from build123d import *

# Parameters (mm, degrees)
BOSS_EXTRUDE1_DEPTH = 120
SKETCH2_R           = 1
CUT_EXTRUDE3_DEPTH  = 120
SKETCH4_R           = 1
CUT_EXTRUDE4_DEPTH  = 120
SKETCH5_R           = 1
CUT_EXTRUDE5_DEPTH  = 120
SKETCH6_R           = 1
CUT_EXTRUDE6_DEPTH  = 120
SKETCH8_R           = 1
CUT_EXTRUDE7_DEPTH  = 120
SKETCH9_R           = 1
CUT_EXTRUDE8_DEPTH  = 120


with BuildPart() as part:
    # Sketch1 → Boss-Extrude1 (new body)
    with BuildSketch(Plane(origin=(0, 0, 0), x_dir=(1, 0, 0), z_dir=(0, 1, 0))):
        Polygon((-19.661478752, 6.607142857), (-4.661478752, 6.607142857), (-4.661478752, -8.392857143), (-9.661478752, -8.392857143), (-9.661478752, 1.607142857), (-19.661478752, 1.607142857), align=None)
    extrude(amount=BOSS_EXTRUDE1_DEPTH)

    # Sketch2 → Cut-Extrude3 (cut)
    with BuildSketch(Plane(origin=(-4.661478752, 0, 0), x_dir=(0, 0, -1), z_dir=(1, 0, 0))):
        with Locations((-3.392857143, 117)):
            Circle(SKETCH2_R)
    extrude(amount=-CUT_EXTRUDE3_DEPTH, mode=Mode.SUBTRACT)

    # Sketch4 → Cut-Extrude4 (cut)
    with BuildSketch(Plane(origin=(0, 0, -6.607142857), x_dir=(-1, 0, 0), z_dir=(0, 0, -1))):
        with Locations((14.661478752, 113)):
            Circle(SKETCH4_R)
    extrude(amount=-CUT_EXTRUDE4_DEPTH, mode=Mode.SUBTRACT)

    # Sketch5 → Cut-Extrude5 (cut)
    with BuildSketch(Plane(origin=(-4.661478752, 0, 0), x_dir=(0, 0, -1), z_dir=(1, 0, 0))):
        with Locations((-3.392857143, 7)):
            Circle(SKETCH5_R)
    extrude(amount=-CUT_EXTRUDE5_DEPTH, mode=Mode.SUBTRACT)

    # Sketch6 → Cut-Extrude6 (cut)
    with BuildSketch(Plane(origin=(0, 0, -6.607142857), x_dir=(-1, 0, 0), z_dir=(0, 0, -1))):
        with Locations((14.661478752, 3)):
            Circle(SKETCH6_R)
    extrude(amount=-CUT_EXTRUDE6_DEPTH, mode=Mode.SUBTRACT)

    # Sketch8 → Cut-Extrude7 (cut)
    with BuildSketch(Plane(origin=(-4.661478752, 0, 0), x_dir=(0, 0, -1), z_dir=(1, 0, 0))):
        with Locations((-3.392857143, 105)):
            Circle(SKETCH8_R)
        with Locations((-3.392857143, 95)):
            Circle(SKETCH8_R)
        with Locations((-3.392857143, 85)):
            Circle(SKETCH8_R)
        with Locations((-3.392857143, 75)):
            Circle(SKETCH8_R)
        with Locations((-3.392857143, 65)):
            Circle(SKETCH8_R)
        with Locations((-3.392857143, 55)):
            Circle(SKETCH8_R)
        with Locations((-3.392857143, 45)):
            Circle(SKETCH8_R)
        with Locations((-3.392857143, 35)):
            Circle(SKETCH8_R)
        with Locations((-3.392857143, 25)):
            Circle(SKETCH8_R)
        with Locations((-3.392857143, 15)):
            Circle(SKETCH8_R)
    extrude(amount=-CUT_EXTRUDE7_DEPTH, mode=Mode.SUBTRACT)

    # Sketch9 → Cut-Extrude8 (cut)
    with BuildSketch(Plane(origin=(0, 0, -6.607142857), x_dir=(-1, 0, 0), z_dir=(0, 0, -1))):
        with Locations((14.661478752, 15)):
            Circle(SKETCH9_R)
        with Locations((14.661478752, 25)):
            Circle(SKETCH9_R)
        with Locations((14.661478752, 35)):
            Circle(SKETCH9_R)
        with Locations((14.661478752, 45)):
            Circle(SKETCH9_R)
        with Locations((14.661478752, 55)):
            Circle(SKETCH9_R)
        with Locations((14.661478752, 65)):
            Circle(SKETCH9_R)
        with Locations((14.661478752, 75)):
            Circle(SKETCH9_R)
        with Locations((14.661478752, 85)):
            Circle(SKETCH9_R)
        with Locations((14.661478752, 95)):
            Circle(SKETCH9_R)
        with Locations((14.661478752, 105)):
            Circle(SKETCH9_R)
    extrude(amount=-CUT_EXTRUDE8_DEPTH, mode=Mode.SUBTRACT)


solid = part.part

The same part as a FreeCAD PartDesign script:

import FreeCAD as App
import Part
import Sketcher

V = App.Vector
Q = App.Units.Quantity


def add_polygon(sketch, points):
    """Adds a closed chain of lines whose ends are joined by coincident constraints."""
    first, n = sketch.GeometryCount, len(points)
    for a, b in zip(points, points[1:] + points[:1]):
        sketch.addGeometry(Part.LineSegment(App.Vector(*a, 0), App.Vector(*b, 0)), False)
    for i in range(n):
        sketch.addConstraint(Sketcher.Constraint("Coincident", first + i, 2, first + (i + 1) % n, 1))

doc = App.newDocument("Part")
body = doc.addObject("PartDesign::Body", "Body")

sketch1 = body.newObject("Sketcher::SketchObject", "Sketch")
sketch1.AttachmentSupport = (doc.getObject("XZ_Plane"), [""])
sketch1.MapMode = "FlatFace"
add_polygon(sketch1, [(-4.661479, -6.607143), (-19.661479, -6.607143), (-19.661479, -1.607143), (-9.661479, -1.607143), (-9.661479, 8.392857), (-4.661479, 8.392857)])
sketch1.addConstraint([
    Sketcher.Constraint("Horizontal", 0),
    Sketcher.Constraint("Vertical", 1),
    Sketcher.Constraint("Horizontal", 2),
    Sketcher.Constraint("Vertical", 3),
    Sketcher.Constraint("Horizontal", 4),
    Sketcher.Constraint("Vertical", 5),
    Sketcher.Constraint("Equal", 4, 1),
    Sketcher.Constraint("Equal", 2, 3),
    Sketcher.Constraint("DistanceX", 0, 2, 0, 1, Q("15 mm")),
    Sketcher.Constraint("DistanceX", 2, 1, 2, 2, Q("10 mm")),
    Sketcher.Constraint("DistanceX", 0, 2, -1, 1, Q("19.661479 mm")),
    Sketcher.Constraint("DistanceY", 0, 2, -1, 1, Q("6.607143 mm")),
])
pad1 = body.newObject("PartDesign::Pad", "Pad")
pad1.Profile = sketch1
pad1.Length = 120
pad1.Reversed = True

sketch2 = body.newObject("Sketcher::SketchObject", "Sketch001")
sketch2.AttachmentSupport = (doc.getObject("YZ_Plane"), [""])
sketch2.MapMode = "FlatFace"
sketch2.AttachmentOffset = App.Placement(V(0, 0, -4.661479), App.Rotation())
sketch2.addGeometry(Part.Circle(V(117, 3.392857, 0), V(0, 0, 1), 1), False)
sketch2.addConstraint([
    Sketcher.Constraint("Diameter", 0, Q("2 mm")),
    Sketcher.Constraint("DistanceX", -1, 1, 0, 3, Q("117 mm")),
    Sketcher.Constraint("DistanceY", -1, 1, 0, 3, Q("3.392857 mm")),
])
pocket1 = body.newObject("PartDesign::Pocket", "Pocket")
pocket1.Profile = sketch2
pocket1.Length = 120

sketch3 = body.newObject("Sketcher::SketchObject", "Sketch002")
sketch3.AttachmentSupport = (doc.getObject("XY_Plane"), [""])
sketch3.MapMode = "FlatFace"
sketch3.AttachmentOffset = App.Placement(V(0, 0, -6.607143), App.Rotation())
sketch3.addGeometry(Part.Circle(V(-14.661479, 113, 0), V(0, 0, 1), 1), False)
sketch3.addConstraint([
    Sketcher.Constraint("Diameter", 0, Q("2 mm")),
    Sketcher.Constraint("DistanceY", -1, 1, 0, 3, Q("113 mm")),
    Sketcher.Constraint("DistanceX", 0, 3, -1, 1, Q("14.661479 mm")),
])
pocket2 = body.newObject("PartDesign::Pocket", "Pocket001")
pocket2.Profile = sketch3
pocket2.Length = 120
pocket2.Reversed = True

sketch4 = body.newObject("Sketcher::SketchObject", "Sketch003")
sketch4.AttachmentSupport = (doc.getObject("YZ_Plane"), [""])
sketch4.MapMode = "FlatFace"
sketch4.AttachmentOffset = App.Placement(V(0, 0, -4.661479), App.Rotation())
sketch4.addGeometry(Part.Circle(V(7, 3.392857, 0), V(0, 0, 1), 1), False)
sketch4.addConstraint([
    Sketcher.Constraint("Diameter", 0, Q("2 mm")),
    Sketcher.Constraint("DistanceX", -1, 1, 0, 3, Q("7 mm")),
    Sketcher.Constraint("DistanceY", -1, 1, 0, 3, Q("3.392857 mm")),
])
pocket3 = body.newObject("PartDesign::Pocket", "Pocket002")
pocket3.Profile = sketch4
pocket3.Length = 120

sketch5 = body.newObject("Sketcher::SketchObject", "Sketch004")
sketch5.AttachmentSupport = (doc.getObject("XY_Plane"), [""])
sketch5.MapMode = "FlatFace"
sketch5.AttachmentOffset = App.Placement(V(0, 0, -6.607143), App.Rotation())
sketch5.addGeometry(Part.Circle(V(-14.661479, 3, 0), V(0, 0, 1), 1), False)
sketch5.addConstraint([
    Sketcher.Constraint("Diameter", 0, Q("2 mm")),
    Sketcher.Constraint("DistanceY", -1, 1, 0, 3, Q("3 mm")),
    Sketcher.Constraint("DistanceX", 0, 3, -1, 1, Q("14.661479 mm")),
])
pocket4 = body.newObject("PartDesign::Pocket", "Pocket003")
pocket4.Profile = sketch5
pocket4.Length = 120
pocket4.Reversed = True

sketch6 = body.newObject("Sketcher::SketchObject", "Sketch005")
sketch6.AttachmentSupport = (doc.getObject("YZ_Plane"), [""])
sketch6.MapMode = "FlatFace"
sketch6.AttachmentOffset = App.Placement(V(0, 0, -4.661479), App.Rotation())
sketch6.addGeometry([
    Part.Circle(V(105, 3.392857, 0), V(0, 0, 1), 1),
    Part.Circle(V(95, 3.392857, 0), V(0, 0, 1), 1),
    Part.Circle(V(85, 3.392857, 0), V(0, 0, 1), 1),
    Part.Circle(V(75, 3.392857, 0), V(0, 0, 1), 1),
    Part.Circle(V(65, 3.392857, 0), V(0, 0, 1), 1),
    Part.Circle(V(55, 3.392857, 0), V(0, 0, 1), 1),
    Part.Circle(V(45, 3.392857, 0), V(0, 0, 1), 1),
    Part.Circle(V(35, 3.392857, 0), V(0, 0, 1), 1),
    Part.Circle(V(25, 3.392857, 0), V(0, 0, 1), 1),
    Part.Circle(V(15, 3.392857, 0), V(0, 0, 1), 1),
], False)
sketch6.addConstraint([
    Sketcher.Constraint("Equal", 0, 1),
    Sketcher.Constraint("Equal", 1, 2),
    Sketcher.Constraint("Equal", 2, 3),
    Sketcher.Constraint("Equal", 3, 4),
    Sketcher.Constraint("Equal", 4, 5),
    Sketcher.Constraint("Equal", 5, 6),
    Sketcher.Constraint("Equal", 6, 7),
    Sketcher.Constraint("Equal", 7, 8),
    Sketcher.Constraint("Equal", 8, 9),
    Sketcher.Constraint("Horizontal", 0, 3, 1, 3),
    Sketcher.Constraint("Horizontal", 1, 3, 2, 3),
    Sketcher.Constraint("Horizontal", 2, 3, 3, 3),
    Sketcher.Constraint("Horizontal", 3, 3, 4, 3),
    Sketcher.Constraint("Horizontal", 4, 3, 5, 3),
    Sketcher.Constraint("Horizontal", 5, 3, 6, 3),
    Sketcher.Constraint("Horizontal", 6, 3, 7, 3),
    Sketcher.Constraint("Horizontal", 7, 3, 8, 3),
    Sketcher.Constraint("Horizontal", 8, 3, 9, 3),
    Sketcher.Constraint("Diameter", 0, Q("2 mm")),
    Sketcher.Constraint("DistanceX", -1, 1, 0, 3, Q("105 mm")),
    Sketcher.Constraint("DistanceX", -1, 1, 1, 3, Q("95 mm")),
    Sketcher.Constraint("DistanceX", -1, 1, 2, 3, Q("85 mm")),
    Sketcher.Constraint("DistanceX", -1, 1, 3, 3, Q("75 mm")),
    Sketcher.Constraint("DistanceX", -1, 1, 4, 3, Q("65 mm")),
    Sketcher.Constraint("DistanceX", -1, 1, 5, 3, Q("55 mm")),
    Sketcher.Constraint("DistanceX", -1, 1, 6, 3, Q("45 mm")),
    Sketcher.Constraint("DistanceX", -1, 1, 7, 3, Q("35 mm")),
    Sketcher.Constraint("DistanceX", -1, 1, 8, 3, Q("25 mm")),
    Sketcher.Constraint("DistanceX", -1, 1, 9, 3, Q("15 mm")),
    Sketcher.Constraint("DistanceY", -1, 1, 0, 3, Q("3.392857 mm")),
])
pocket5 = body.newObject("PartDesign::Pocket", "Pocket004")
pocket5.Profile = sketch6
pocket5.Length = 120

sketch7 = body.newObject("Sketcher::SketchObject", "Sketch006")
sketch7.AttachmentSupport = (doc.getObject("XY_Plane"), [""])
sketch7.MapMode = "FlatFace"
sketch7.AttachmentOffset = App.Placement(V(0, 0, -6.607143), App.Rotation())
sketch7.addGeometry([
    Part.Circle(V(-14.661479, 15, 0), V(0, 0, 1), 1),
    Part.Circle(V(-14.661479, 25, 0), V(0, 0, 1), 1),
    Part.Circle(V(-14.661479, 35, 0), V(0, 0, 1), 1),
    Part.Circle(V(-14.661479, 45, 0), V(0, 0, 1), 1),
    Part.Circle(V(-14.661479, 55, 0), V(0, 0, 1), 1),
    Part.Circle(V(-14.661479, 65, 0), V(0, 0, 1), 1),
    Part.Circle(V(-14.661479, 75, 0), V(0, 0, 1), 1),
    Part.Circle(V(-14.661479, 85, 0), V(0, 0, 1), 1),
    Part.Circle(V(-14.661479, 95, 0), V(0, 0, 1), 1),
    Part.Circle(V(-14.661479, 105, 0), V(0, 0, 1), 1),
], False)
sketch7.addConstraint([
    Sketcher.Constraint("Equal", 0, 1),
    Sketcher.Constraint("Equal", 1, 2),
    Sketcher.Constraint("Equal", 2, 3),
    Sketcher.Constraint("Equal", 3, 4),
    Sketcher.Constraint("Equal", 4, 5),
    Sketcher.Constraint("Equal", 5, 6),
    Sketcher.Constraint("Equal", 6, 7),
    Sketcher.Constraint("Equal", 7, 8),
    Sketcher.Constraint("Equal", 8, 9),
    Sketcher.Constraint("Vertical", 0, 3, 1, 3),
    Sketcher.Constraint("Vertical", 1, 3, 2, 3),
    Sketcher.Constraint("Vertical", 2, 3, 3, 3),
    Sketcher.Constraint("Vertical", 3, 3, 4, 3),
    Sketcher.Constraint("Vertical", 4, 3, 5, 3),
    Sketcher.Constraint("Vertical", 5, 3, 6, 3),
    Sketcher.Constraint("Vertical", 6, 3, 7, 3),
    Sketcher.Constraint("Vertical", 7, 3, 8, 3),
    Sketcher.Constraint("Vertical", 8, 3, 9, 3),
    Sketcher.Constraint("Diameter", 0, Q("2 mm")),
    Sketcher.Constraint("DistanceY", -1, 1, 0, 3, Q("15 mm")),
    Sketcher.Constraint("DistanceY", -1, 1, 1, 3, Q("25 mm")),
    Sketcher.Constraint("DistanceY", -1, 1, 2, 3, Q("35 mm")),
    Sketcher.Constraint("DistanceY", -1, 1, 3, 3, Q("45 mm")),
    Sketcher.Constraint("DistanceY", -1, 1, 4, 3, Q("55 mm")),
    Sketcher.Constraint("DistanceY", -1, 1, 5, 3, Q("65 mm")),
    Sketcher.Constraint("DistanceY", -1, 1, 6, 3, Q("75 mm")),
    Sketcher.Constraint("DistanceY", -1, 1, 7, 3, Q("85 mm")),
    Sketcher.Constraint("DistanceY", -1, 1, 8, 3, Q("95 mm")),
    Sketcher.Constraint("DistanceY", -1, 1, 9, 3, Q("105 mm")),
    Sketcher.Constraint("DistanceX", 0, 3, -1, 1, Q("14.661479 mm")),
])
pocket6 = body.newObject("PartDesign::Pocket", "Pocket005")
pocket6.Profile = sketch7
pocket6.Length = 120
pocket6.Reversed = True

doc.recompute()
